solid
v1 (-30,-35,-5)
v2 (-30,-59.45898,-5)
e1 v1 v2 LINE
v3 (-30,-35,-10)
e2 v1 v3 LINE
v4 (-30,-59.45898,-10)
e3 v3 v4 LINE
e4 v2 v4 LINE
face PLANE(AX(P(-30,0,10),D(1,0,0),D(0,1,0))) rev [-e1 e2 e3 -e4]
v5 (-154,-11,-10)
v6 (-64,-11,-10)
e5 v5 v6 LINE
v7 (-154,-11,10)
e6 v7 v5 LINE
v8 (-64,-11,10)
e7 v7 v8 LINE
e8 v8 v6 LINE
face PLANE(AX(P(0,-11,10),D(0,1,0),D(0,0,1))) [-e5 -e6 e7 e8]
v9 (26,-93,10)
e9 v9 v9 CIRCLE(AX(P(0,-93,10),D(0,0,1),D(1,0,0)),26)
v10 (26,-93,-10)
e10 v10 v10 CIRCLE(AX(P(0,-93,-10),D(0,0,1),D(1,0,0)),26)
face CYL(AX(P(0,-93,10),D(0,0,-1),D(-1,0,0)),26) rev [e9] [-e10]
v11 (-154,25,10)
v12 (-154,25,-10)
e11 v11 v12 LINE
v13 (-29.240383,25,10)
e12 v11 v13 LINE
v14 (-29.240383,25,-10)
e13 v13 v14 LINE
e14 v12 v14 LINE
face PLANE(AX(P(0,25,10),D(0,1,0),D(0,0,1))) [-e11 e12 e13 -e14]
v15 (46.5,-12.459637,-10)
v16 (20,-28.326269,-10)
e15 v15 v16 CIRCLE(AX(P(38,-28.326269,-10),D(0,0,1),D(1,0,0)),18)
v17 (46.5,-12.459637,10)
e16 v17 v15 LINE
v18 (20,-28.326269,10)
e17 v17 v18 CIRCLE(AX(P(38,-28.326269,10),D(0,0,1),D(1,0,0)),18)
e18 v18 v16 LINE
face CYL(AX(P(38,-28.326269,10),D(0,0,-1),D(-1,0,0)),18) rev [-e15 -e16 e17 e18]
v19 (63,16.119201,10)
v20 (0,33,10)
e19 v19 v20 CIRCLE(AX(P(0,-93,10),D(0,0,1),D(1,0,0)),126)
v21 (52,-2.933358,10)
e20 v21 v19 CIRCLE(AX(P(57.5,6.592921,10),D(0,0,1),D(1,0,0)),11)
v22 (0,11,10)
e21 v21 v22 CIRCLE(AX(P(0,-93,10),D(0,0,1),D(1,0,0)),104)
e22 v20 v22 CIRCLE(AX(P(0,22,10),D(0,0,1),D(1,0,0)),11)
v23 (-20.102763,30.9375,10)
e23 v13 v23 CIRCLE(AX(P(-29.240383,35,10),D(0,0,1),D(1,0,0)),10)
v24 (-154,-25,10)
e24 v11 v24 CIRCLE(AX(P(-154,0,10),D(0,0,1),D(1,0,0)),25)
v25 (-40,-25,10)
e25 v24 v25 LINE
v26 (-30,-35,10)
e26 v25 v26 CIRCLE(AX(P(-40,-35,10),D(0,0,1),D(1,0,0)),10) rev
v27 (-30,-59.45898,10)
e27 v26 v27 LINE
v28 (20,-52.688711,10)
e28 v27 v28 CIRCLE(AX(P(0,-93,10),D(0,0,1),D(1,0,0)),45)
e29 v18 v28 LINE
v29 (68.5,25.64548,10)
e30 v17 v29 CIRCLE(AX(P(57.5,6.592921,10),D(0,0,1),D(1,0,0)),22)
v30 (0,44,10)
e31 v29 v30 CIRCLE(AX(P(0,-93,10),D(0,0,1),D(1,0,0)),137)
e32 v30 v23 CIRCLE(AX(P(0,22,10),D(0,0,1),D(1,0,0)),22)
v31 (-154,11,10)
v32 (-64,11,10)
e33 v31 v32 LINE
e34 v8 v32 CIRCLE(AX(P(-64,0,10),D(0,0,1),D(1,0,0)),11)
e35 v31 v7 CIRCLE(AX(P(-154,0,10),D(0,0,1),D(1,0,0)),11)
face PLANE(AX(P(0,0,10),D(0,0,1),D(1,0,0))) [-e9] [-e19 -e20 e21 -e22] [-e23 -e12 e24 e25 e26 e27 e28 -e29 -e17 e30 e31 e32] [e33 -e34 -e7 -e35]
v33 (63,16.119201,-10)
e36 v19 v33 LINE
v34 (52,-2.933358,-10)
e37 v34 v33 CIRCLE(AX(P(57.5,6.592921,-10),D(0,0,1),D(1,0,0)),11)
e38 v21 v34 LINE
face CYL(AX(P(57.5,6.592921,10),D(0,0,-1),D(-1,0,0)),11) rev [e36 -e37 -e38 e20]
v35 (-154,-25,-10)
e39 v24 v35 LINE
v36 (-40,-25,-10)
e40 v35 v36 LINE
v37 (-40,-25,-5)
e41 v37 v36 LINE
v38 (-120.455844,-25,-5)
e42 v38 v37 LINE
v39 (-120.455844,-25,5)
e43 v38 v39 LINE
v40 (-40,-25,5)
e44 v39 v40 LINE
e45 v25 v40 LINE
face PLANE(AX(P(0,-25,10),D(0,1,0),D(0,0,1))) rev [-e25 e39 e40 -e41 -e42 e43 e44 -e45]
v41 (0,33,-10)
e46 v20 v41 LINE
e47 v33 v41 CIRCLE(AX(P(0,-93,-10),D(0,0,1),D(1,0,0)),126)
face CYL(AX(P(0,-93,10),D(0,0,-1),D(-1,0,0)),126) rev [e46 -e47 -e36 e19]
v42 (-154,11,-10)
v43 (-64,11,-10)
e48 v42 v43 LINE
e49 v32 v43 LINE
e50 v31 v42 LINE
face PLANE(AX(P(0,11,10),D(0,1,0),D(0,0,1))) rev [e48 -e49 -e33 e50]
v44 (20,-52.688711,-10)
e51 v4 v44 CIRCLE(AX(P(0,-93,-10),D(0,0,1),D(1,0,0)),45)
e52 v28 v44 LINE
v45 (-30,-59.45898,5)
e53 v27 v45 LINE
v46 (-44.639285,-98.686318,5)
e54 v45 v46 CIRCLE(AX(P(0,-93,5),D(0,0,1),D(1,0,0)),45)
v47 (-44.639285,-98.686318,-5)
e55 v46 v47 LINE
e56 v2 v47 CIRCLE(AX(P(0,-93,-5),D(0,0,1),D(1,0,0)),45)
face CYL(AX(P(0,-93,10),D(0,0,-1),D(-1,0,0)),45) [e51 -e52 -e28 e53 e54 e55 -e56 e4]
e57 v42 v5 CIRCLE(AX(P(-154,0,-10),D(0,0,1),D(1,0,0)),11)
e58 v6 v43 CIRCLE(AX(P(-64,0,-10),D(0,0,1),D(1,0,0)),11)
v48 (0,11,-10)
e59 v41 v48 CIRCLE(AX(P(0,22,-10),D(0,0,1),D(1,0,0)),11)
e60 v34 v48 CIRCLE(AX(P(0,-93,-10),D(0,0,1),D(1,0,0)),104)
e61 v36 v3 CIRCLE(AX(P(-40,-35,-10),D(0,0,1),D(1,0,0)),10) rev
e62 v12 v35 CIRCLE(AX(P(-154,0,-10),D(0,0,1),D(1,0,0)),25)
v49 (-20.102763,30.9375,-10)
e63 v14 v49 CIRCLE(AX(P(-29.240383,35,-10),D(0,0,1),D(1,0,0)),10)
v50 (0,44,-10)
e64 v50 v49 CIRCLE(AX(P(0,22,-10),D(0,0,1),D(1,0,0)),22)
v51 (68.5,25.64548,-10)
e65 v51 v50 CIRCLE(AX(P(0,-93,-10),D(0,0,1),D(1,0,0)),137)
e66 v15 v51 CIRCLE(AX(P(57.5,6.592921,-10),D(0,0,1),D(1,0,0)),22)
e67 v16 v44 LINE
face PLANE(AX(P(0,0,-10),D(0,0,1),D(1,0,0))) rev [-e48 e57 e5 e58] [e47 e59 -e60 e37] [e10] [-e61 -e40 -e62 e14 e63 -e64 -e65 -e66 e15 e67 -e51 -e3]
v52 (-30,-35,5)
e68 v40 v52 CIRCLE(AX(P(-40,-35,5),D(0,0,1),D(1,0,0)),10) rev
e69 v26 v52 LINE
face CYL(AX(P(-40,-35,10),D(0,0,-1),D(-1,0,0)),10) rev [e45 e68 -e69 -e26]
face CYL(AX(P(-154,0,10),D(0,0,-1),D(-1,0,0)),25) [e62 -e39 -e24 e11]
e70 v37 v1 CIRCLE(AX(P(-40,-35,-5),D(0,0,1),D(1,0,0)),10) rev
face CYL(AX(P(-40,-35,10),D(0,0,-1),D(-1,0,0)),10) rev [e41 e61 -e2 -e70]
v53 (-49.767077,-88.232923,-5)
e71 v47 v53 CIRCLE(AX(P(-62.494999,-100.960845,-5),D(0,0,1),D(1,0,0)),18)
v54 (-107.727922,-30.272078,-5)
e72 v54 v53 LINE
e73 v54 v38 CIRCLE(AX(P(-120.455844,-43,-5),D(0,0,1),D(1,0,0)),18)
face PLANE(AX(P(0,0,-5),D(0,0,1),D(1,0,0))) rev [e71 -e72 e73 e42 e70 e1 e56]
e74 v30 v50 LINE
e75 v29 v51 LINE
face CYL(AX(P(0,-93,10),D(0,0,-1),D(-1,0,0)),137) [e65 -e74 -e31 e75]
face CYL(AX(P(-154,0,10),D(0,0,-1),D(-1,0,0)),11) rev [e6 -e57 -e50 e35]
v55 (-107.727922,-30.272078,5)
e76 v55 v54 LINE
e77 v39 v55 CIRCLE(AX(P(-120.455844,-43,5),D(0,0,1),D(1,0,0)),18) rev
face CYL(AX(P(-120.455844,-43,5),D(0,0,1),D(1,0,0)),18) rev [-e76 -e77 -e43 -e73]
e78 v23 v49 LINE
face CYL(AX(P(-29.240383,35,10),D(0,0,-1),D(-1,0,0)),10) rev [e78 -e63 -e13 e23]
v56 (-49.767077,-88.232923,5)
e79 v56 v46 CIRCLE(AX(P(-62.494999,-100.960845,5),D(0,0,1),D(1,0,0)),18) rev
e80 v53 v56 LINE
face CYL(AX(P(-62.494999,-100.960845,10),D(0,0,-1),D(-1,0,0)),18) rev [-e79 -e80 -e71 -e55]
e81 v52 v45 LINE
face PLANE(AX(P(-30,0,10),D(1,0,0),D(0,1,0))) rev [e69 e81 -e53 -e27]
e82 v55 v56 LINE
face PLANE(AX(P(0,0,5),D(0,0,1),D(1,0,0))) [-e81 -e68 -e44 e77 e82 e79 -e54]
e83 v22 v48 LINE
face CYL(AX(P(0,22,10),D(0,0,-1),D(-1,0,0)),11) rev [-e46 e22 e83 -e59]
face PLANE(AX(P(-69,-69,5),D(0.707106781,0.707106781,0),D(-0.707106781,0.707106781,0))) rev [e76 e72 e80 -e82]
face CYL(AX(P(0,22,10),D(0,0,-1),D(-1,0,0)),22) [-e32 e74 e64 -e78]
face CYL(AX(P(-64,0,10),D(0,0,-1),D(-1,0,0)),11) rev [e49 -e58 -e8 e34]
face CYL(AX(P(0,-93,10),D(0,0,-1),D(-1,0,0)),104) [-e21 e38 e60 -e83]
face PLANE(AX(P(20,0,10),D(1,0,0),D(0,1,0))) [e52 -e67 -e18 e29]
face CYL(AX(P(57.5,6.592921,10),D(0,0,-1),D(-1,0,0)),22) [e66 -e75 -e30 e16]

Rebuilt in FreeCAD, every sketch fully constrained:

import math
import FreeCAD as App
import Part
import Sketcher

V = App.Vector
Q = App.Units.Quantity


def edges_at(feature, points):
    """Names of the edges that pass closest to the given points."""
    edges = feature.Shape.Edges
    near = lambda p: min(range(len(edges)), key=lambda i: edges[i].distToShape(Part.Vertex(*p))[0])
    return sorted({f"Edge{near(p) + 1}" for p in points})

doc = App.newDocument("Part")
body = doc.addObject("PartDesign::Body", "Body")

# Sketch on XY plane
sketch1 = body.newObject("Sketcher::SketchObject", "Sketch")
sketch1.AttachmentSupport = (doc.getObject("XY_Plane"), [""])
sketch1.MapMode = "FlatFace"
sketch1.addGeometry(Part.ArcOfCircle(Part.Circle(V(38, -28, 0), V(0, 0, 1), 18), math.radians(62), math.radians(180)), False)
sketch1.addGeometry(Part.ArcOfCircle(Part.Circle(V(58, 7, 0), V(0, 0, 1), 22), math.radians(-120), math.radians(60)), False)
sketch1.addGeometry(Part.ArcOfCircle(Part.Circle(V(0, -93, 0), V(0, 0, 1), 137), math.radians(60), math.radians(90)), False)
sketch1.addGeometry(Part.ArcOfCircle(Part.Circle(V(0, 22, 0), V(0, 0, 1), 22), math.radians(90), math.radians(156)), False)
sketch1.addGeometry(Part.ArcOfCircle(Part.Circle(V(-29, 35, 0), V(0, 0, 1), 10), math.radians(-90), math.radians(-24)), False)
sketch1.addGeometry(Part.LineSegment(V(-29, 25, 0), V(-154, 25, 0)), False)
sketch1.addGeometry(Part.ArcOfCircle(Part.Circle(V(-154, 0, 0), V(0, 0, 1), 25), math.radians(90), math.radians(270)), False)
sketch1.addGeometry(Part.LineSegment(V(-154, -25, 0), V(-40, -25, 0)), False)
sketch1.addGeometry(Part.ArcOfCircle(Part.Circle(V(-40, -35, 0), V(0, 0, 1), 10), math.radians(0), math.radians(90)), False)
sketch1.addGeometry(Part.LineSegment(V(-30, -35, 0), V(-30, -59, 0)), False)
sketch1.addGeometry(Part.ArcOfCircle(Part.Circle(V(0, -93, 0), V(0, 0, 1), 45), math.radians(132), math.radians(424)), False)
sketch1.addGeometry(Part.LineSegment(V(20, -53, 0), V(20, -28, 0)), False)
sketch1.addGeometry(Part.Circle(V(0, -93, 0), V(0, 0, 1), 26), False)
sketch1.addGeometry(Part.ArcOfCircle(Part.Circle(V(0, -93, 0), V(0, 0, 1), 126), math.radians(60), math.radians(90)), False)
sketch1.addGeometry(Part.ArcOfCircle(Part.Circle(V(58, 7, 0), V(0, 0, 1), 11), math.radians(-120), math.radians(60)), False)
sketch1.addGeometry(Part.ArcOfCircle(Part.Circle(V(0, -93, 0), V(0, 0, 1), 104), math.radians(60), math.radians(90)), False)
sketch1.addGeometry(Part.ArcOfCircle(Part.Circle(V(0, 22, 0), V(0, 0, 1), 11), math.radians(90), math.radians(270)), False)
sketch1.addGeometry(Part.LineSegment(V(-64, -11, 0), V(-154, -11, 0)), False)
sketch1.addGeometry(Part.ArcOfCircle(Part.Circle(V(-154, 0, 0), V(0, 0, 1), 11), math.radians(90), math.radians(270)), False)
sketch1.addGeometry(Part.LineSegment(V(-154, 11, 0), V(-64, 11, 0)), False)
sketch1.addGeometry(Part.ArcOfCircle(Part.Circle(V(-64, 0, 0), V(0, 0, 1), 11), math.radians(-90), math.radians(90)), False)
sketch1.addConstraint(Sketcher.Constraint("Coincident", 0, 1, 1, 1))
sketch1.addConstraint(Sketcher.Constraint("Tangent", 1, 2, 2, 1))
sketch1.addConstraint(Sketcher.Constraint("Tangent", 2, 2, 3, 1))
sketch1.addConstraint(Sketcher.Constraint("Tangent", 3, 2, 4, 2))
sketch1.addConstraint(Sketcher.Constraint("Tangent", 4, 1, 5, 1))
sketch1.addConstraint(Sketcher.Constraint("Tangent", 5, 2, 6, 1))
sketch1.addConstraint(Sketcher.Constraint("Tangent", 6, 2, 7, 1))
sketch1.addConstraint(Sketcher.Constraint("Tangent", 7, 2, 8, 2))
sketch1.addConstraint(Sketcher.Constraint("Tangent", 8, 1, 9, 1))
sketch1.addConstraint(Sketcher.Constraint("Coincident", 9, 2, 10, 1))
sketch1.addConstraint(Sketcher.Constraint("Coincident", 10, 2, 11, 1))
sketch1.addConstraint(Sketcher.Constraint("Tangent", 11, 2, 0, 2))
sketch1.addConstraint(Sketcher.Constraint("Tangent", 13, 1, 14, 2))
sketch1.addConstraint(Sketcher.Constraint("Tangent", 14, 1, 15, 1))
sketch1.addConstraint(Sketcher.Constraint("Tangent", 15, 2, 16, 2))
sketch1.addConstraint(Sketcher.Constraint("Tangent", 16, 1, 13, 2))
sketch1.addConstraint(Sketcher.Constraint("Tangent", 17, 2, 18, 2))
sketch1.addConstraint(Sketcher.Constraint("Tangent", 18, 1, 19, 1))
sketch1.addConstraint(Sketcher.Constraint("Tangent", 19, 2, 20, 2))
sketch1.addConstraint(Sketcher.Constraint("Tangent", 20, 1, 17, 1))
sketch1.addConstraint(Sketcher.Constraint("Horizontal", 5))
sketch1.addConstraint(Sketcher.Constraint("Horizontal", 7))
sketch1.addConstraint(Sketcher.Constraint("Vertical", 9))
sketch1.addConstraint(Sketcher.Constraint("Vertical", 11))
sketch1.addConstraint(Sketcher.Constraint("Horizontal", 17))
sketch1.addConstraint(Sketcher.Constraint("Horizontal", 19))
sketch1.addConstraint(Sketcher.Constraint("Coincident", 10, 3, 2, 3))
sketch1.addConstraint(Sketcher.Constraint("Coincident", 12, 3, 2, 3))
sketch1.addConstraint(Sketcher.Constraint("Coincident", 13, 3, 2, 3))
sketch1.addConstraint(Sketcher.Constraint("Coincident", 14, 3, 1, 3))
sketch1.addConstraint(Sketcher.Constraint("Coincident", 15, 3, 2, 3))
sketch1.addConstraint(Sketcher.Constraint("Coincident", 16, 3, 3, 3))
sketch1.addConstraint(Sketcher.Constraint("Coincident", 18, 3, 6, 3))
sketch1.addConstraint(Sketcher.Constraint("Equal", 4, 8))
sketch1.addConstraint(Sketcher.Constraint("Equal", 16, 18))
sketch1.addConstraint(Sketcher.Constraint("PointOnObject", 2, 3, -2))
sketch1.addConstraint(Sketcher.Constraint("PointOnObject", 3, 3, -2))
sketch1.addConstraint(Sketcher.Constraint("PointOnObject", 6, 3, -1))
sketch1.addConstraint(Sketcher.Constraint("Horizontal", 15, 2, 18, 1))
sketch1.addConstraint(Sketcher.Constraint("Diameter", 12, 52.0))
sketch1.addConstraint(Sketcher.Constraint("Radius", 0, 18.0))
sketch1.addConstraint(Sketcher.Constraint("Radius", 1, 22.0))
sketch1.addConstraint(Sketcher.Constraint("Radius", 2, 137.0))
sketch1.addConstraint(Sketcher.Constraint("Radius", 4, 10.0))
sketch1.addConstraint(Sketcher.Constraint("Radius", 6, 25.0))
sketch1.addConstraint(Sketcher.Constraint("Radius", 10, 45.0))
sketch1.addConstraint(Sketcher.Constraint("Radius", 13, 126.0))
sketch1.addConstraint(Sketcher.Constraint("DistanceX", 7, 1, 7, 2, 114.0))
sketch1.addConstraint(Sketcher.Constraint("DistanceX", 17, 2, 17, 1, 90.0))
sketch1.addConstraint(Sketcher.Constraint("DistanceX", -1, 1, 0, 3, 38.0))
sketch1.addConstraint(Sketcher.Constraint("DistanceX", 6, 3, -1, 1, 154.0))
sketch1.addConstraint(Sketcher.Constraint("DistanceX", -1, 1, 13, 1, 63.0))
sketch1.addConstraint(Sketcher.Constraint("DistanceX", 0, 1, 1, 3, 11.0))
pad1 = body.newObject("PartDesign::Pad", "Pad")
pad1.Profile = sketch1
pad1.Length = 20
pad1.Midplane = True

# Sketch on XY plane
sketch2 = body.newObject("Sketcher::SketchObject", "Sketch001")
sketch2.AttachmentSupport = (doc.getObject("XY_Plane"), [""])
sketch2.MapMode = "FlatFace"
sketch2.addGeometry(Part.LineSegment(V(-30, -59, 0), V(-30, -35, 0)), False)
sketch2.addGeometry(Part.ArcOfCircle(Part.Circle(V(-40, -35, 0), V(0, 0, 1), 10), math.radians(0), math.radians(90)), False)
sketch2.addGeometry(Part.LineSegment(V(-40, -25, 0), V(-113, -25, 0)), False)
sketch2.addGeometry(Part.LineSegment(V(-113, -25, 0), V(-45, -93, 0)), False)
sketch2.addGeometry(Part.ArcOfCircle(Part.Circle(V(0, -93, 0), V(0, 0, 1), 45), math.radians(132), math.radians(180)), False)
sketch2.addConstraint(Sketcher.Constraint("Tangent", 0, 2, 1, 1))
sketch2.addConstraint(Sketcher.Constraint("Tangent", 1, 2, 2, 1))
sketch2.addConstraint(Sketcher.Constraint("Coincident", 2, 2, 3, 1))
sketch2.addConstraint(Sketcher.Constraint("Coincident", 3, 2, 4, 2))
sketch2.addConstraint(Sketcher.Constraint("Coincident", 4, 1, 0, 1))
sketch2.addConstraint(Sketcher.Constraint("Vertical", 0))
sketch2.addConstraint(Sketcher.Constraint("Horizontal", 2))
sketch2.addConstraint(Sketcher.Constraint("PointOnObject", 4, 3, -2))
sketch2.addConstraint(Sketcher.Constraint("Horizontal", 4, 3, 3, 2))
sketch2.addConstraint(Sketcher.Constraint("Radius", 1, 10.0))
sketch2.addConstraint(Sketcher.Constraint("Radius", 4, 45.0))
sketch2.addConstraint(Sketcher.Constraint("DistanceX", 2, 2, 2, 1, 73.0))
sketch2.addConstraint(Sketcher.Constraint("Angle", 3, Q("-45 deg")))
sketch2.addConstraint(Sketcher.Constraint("DistanceX", 1, 3, -1, 1, 40.0))
sketch2.addConstraint(Sketcher.Constraint("DistanceY", 1, 3, -1, 1, 35.0))
pad2 = body.newObject("PartDesign::Pad", "Pad001")
pad2.Profile = sketch2
pad2.Length = 10
pad2.Midplane = True
doc.recompute()

fillet = body.newObject("PartDesign::Fillet", "Fillet")
fillet.Base = (pad2, edges_at(pad2, [(-113, -25, 0), (-45, -93, 0)]))
fillet.Radius = 18

doc.recompute()
